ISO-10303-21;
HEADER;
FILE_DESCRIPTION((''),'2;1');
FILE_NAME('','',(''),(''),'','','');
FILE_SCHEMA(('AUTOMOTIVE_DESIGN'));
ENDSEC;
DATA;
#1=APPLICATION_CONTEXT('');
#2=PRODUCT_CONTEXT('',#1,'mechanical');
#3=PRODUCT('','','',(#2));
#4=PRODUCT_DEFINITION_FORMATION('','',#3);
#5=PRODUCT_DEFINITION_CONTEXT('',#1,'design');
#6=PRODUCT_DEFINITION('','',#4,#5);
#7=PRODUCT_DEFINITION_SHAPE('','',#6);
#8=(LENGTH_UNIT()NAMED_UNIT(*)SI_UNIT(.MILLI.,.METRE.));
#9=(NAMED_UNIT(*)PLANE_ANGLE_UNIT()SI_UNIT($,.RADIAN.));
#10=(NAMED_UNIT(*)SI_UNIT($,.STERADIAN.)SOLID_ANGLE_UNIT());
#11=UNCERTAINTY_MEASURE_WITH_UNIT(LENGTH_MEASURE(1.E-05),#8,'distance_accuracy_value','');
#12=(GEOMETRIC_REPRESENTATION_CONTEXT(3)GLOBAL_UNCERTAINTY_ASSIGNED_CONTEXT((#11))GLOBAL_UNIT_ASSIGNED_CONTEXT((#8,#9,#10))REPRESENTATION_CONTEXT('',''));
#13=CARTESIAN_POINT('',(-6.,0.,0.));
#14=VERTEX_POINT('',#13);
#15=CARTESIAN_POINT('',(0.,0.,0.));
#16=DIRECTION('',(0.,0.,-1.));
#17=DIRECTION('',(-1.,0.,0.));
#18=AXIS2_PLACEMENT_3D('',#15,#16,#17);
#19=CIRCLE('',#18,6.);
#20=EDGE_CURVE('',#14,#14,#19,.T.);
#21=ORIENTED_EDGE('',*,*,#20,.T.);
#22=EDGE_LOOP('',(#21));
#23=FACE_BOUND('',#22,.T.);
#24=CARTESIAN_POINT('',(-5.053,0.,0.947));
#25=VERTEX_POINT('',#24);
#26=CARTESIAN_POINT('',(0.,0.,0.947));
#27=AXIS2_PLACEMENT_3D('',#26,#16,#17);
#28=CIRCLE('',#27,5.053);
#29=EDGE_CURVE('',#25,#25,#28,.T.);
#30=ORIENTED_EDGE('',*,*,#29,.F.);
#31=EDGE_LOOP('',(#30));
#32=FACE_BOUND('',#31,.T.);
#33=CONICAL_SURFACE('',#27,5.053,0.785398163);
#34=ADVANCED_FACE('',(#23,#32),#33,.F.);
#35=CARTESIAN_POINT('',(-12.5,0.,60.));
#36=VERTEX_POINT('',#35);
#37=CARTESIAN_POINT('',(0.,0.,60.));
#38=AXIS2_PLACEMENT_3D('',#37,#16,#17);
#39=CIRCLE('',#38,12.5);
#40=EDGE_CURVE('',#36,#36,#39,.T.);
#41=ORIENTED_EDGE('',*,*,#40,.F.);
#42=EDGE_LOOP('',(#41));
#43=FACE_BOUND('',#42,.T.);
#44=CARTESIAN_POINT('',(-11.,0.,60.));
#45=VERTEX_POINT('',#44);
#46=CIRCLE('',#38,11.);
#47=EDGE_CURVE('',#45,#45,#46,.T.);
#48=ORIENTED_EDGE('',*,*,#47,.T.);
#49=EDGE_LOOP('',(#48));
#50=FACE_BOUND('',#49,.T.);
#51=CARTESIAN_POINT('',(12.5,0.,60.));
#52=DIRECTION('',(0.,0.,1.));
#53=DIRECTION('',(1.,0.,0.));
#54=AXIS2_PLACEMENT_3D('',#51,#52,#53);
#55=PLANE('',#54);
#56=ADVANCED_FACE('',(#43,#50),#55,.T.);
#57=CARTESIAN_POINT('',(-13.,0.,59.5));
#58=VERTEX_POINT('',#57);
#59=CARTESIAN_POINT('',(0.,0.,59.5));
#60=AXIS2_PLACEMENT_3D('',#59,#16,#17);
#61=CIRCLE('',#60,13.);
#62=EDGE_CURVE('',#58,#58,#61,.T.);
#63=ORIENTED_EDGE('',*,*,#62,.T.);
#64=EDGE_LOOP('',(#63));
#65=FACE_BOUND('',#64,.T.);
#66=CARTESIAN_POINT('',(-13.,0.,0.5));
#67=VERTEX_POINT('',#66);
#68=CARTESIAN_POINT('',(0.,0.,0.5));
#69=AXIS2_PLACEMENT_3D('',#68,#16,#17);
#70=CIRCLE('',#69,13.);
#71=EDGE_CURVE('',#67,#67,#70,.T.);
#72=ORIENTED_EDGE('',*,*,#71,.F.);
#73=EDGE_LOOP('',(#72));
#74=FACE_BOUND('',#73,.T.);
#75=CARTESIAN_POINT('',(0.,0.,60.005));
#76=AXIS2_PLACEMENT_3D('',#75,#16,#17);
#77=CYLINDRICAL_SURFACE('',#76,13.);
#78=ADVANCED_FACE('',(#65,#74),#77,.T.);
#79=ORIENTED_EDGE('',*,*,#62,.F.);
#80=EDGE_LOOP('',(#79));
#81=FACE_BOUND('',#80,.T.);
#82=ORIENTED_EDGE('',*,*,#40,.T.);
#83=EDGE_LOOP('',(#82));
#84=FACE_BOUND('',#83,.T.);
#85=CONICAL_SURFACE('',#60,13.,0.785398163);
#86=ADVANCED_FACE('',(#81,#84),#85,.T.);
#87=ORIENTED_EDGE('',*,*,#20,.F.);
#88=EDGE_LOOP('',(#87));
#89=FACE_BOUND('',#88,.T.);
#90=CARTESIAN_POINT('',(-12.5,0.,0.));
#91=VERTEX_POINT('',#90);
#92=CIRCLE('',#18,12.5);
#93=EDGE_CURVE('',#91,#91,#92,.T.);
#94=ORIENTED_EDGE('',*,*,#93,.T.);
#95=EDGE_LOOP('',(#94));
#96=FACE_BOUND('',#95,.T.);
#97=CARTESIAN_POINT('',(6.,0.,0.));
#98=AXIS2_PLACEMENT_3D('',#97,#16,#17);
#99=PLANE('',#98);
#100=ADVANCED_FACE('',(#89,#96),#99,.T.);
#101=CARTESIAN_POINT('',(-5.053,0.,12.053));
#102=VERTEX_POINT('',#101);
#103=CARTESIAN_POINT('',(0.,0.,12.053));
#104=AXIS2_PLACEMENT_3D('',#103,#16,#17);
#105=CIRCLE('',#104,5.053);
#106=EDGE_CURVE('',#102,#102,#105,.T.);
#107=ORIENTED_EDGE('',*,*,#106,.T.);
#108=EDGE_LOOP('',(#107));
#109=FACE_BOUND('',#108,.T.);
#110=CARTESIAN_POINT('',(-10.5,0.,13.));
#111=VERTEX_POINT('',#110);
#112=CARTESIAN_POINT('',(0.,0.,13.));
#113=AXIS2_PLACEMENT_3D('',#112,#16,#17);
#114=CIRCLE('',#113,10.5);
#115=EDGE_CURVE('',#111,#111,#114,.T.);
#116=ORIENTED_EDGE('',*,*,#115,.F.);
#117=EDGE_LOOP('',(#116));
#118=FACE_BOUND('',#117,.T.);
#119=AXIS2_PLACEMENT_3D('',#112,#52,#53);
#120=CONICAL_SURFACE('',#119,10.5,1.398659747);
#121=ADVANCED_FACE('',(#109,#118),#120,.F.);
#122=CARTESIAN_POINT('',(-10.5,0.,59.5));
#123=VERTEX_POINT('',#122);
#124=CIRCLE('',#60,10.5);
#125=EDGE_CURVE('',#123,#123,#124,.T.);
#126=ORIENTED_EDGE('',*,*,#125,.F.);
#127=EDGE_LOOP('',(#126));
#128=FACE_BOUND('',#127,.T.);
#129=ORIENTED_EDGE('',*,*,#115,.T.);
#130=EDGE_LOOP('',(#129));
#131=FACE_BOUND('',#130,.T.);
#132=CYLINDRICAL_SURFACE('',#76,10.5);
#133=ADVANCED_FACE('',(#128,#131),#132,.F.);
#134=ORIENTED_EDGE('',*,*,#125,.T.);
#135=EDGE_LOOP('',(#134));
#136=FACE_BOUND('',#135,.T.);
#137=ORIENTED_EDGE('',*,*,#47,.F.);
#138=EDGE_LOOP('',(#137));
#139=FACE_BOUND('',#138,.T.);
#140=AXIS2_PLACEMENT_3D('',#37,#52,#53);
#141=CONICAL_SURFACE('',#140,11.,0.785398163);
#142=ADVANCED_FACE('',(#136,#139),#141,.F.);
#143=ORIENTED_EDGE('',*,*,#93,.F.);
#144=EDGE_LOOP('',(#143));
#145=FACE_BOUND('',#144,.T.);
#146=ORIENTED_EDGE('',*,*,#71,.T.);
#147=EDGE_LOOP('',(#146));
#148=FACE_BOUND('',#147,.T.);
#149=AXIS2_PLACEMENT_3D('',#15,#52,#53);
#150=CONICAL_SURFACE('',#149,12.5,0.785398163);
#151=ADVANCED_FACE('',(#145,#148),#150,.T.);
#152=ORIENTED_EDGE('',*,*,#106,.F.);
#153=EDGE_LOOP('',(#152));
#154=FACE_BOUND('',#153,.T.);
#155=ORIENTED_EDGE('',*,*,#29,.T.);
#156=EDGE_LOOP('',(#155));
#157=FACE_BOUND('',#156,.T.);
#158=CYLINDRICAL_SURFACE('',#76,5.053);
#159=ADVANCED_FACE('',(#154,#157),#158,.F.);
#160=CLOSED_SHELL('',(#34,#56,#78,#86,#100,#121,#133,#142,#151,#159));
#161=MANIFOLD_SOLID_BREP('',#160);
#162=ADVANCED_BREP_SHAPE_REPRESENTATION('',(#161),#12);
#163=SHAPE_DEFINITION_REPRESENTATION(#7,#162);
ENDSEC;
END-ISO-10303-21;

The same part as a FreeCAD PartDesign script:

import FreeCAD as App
import Part
import Sketcher
from FreeCAD import Vector


def add_polygon(sketch, points):
    """Adds a closed chain of lines whose ends are joined by coincident constraints."""
    first, n = sketch.GeometryCount, len(points)
    for a, b in zip(points, points[1:] + points[:1]):
        sketch.addGeometry(Part.LineSegment(App.Vector(*a, 0), App.Vector(*b, 0)), False)
    for i in range(n):
        sketch.addConstraint(Sketcher.Constraint("Coincident", first + i, 2, first + (i + 1) % n, 1))

doc = App.newDocument("Part")
body = doc.addObject("PartDesign::Body", "Body")

# Sketch on XZ plane
sketch1 = doc.addObject("Sketcher::SketchObject", "Sketch")
body.addObject(sketch1)
sketch1.AttachmentSupport = (doc.XZ_Plane, [""])
sketch1.MapMode = "FlatFace"
add_polygon(sketch1, [(5.053, 0.947), (6, 0), (12.5, 0), (13, 0.5), (13, 59.5), (12.5, 60), (11, 60), (10.5, 59.5), (10.5, 13), (5.053, 12.053)])  # lines 0-9
sketch1.addConstraint([
    Sketcher.Constraint("Horizontal", 1),
    Sketcher.Constraint("Vertical", 3),
    Sketcher.Constraint("Horizontal", 5),
    Sketcher.Constraint("Vertical", 7),
    Sketcher.Constraint("Vertical", 9),
    Sketcher.Constraint("PointOnObject", 0, 2, -1),
    Sketcher.Constraint("Perpendicular", 0, 2),
    Sketcher.Constraint("Perpendicular", 2, 4),
    Sketcher.Constraint("Perpendicular", 4, 6),
    Sketcher.Constraint("Horizontal", 3, 2, 6, 2),
    Sketcher.Constraint("Vertical", 1, 2, 4, 2),
    Sketcher.Constraint("Equal", 2, 4),
    Sketcher.Constraint("DistanceY", 3, 1, 3, 2, 59.0),
    Sketcher.Constraint("DistanceX", 1, 1, 1, 2, 6.5),
    Sketcher.Constraint("DistanceX", 5, 2, 5, 1, 1.5),
    Sketcher.Constraint("DistanceY", 7, 2, 7, 1, 46.5),
    Sketcher.Constraint("DistanceX", -1, 1, 0, 2, 6.0),
    Sketcher.Constraint("DistanceX", -1, 1, 2, 2, 13.0),
    Sketcher.Constraint("DistanceY", 9, 2, 9, 1, 11.106),
    Sketcher.Constraint("DistanceX", -1, 1, 8, 2, 5.053),
])
revolution = doc.addObject("PartDesign::Revolution", "Revolution")
body.addObject(revolution)
revolution.Profile = sketch1
revolution.ReferenceAxis = (sketch1, ["V_Axis"])
revolution.Angle = 360

doc.recompute()
